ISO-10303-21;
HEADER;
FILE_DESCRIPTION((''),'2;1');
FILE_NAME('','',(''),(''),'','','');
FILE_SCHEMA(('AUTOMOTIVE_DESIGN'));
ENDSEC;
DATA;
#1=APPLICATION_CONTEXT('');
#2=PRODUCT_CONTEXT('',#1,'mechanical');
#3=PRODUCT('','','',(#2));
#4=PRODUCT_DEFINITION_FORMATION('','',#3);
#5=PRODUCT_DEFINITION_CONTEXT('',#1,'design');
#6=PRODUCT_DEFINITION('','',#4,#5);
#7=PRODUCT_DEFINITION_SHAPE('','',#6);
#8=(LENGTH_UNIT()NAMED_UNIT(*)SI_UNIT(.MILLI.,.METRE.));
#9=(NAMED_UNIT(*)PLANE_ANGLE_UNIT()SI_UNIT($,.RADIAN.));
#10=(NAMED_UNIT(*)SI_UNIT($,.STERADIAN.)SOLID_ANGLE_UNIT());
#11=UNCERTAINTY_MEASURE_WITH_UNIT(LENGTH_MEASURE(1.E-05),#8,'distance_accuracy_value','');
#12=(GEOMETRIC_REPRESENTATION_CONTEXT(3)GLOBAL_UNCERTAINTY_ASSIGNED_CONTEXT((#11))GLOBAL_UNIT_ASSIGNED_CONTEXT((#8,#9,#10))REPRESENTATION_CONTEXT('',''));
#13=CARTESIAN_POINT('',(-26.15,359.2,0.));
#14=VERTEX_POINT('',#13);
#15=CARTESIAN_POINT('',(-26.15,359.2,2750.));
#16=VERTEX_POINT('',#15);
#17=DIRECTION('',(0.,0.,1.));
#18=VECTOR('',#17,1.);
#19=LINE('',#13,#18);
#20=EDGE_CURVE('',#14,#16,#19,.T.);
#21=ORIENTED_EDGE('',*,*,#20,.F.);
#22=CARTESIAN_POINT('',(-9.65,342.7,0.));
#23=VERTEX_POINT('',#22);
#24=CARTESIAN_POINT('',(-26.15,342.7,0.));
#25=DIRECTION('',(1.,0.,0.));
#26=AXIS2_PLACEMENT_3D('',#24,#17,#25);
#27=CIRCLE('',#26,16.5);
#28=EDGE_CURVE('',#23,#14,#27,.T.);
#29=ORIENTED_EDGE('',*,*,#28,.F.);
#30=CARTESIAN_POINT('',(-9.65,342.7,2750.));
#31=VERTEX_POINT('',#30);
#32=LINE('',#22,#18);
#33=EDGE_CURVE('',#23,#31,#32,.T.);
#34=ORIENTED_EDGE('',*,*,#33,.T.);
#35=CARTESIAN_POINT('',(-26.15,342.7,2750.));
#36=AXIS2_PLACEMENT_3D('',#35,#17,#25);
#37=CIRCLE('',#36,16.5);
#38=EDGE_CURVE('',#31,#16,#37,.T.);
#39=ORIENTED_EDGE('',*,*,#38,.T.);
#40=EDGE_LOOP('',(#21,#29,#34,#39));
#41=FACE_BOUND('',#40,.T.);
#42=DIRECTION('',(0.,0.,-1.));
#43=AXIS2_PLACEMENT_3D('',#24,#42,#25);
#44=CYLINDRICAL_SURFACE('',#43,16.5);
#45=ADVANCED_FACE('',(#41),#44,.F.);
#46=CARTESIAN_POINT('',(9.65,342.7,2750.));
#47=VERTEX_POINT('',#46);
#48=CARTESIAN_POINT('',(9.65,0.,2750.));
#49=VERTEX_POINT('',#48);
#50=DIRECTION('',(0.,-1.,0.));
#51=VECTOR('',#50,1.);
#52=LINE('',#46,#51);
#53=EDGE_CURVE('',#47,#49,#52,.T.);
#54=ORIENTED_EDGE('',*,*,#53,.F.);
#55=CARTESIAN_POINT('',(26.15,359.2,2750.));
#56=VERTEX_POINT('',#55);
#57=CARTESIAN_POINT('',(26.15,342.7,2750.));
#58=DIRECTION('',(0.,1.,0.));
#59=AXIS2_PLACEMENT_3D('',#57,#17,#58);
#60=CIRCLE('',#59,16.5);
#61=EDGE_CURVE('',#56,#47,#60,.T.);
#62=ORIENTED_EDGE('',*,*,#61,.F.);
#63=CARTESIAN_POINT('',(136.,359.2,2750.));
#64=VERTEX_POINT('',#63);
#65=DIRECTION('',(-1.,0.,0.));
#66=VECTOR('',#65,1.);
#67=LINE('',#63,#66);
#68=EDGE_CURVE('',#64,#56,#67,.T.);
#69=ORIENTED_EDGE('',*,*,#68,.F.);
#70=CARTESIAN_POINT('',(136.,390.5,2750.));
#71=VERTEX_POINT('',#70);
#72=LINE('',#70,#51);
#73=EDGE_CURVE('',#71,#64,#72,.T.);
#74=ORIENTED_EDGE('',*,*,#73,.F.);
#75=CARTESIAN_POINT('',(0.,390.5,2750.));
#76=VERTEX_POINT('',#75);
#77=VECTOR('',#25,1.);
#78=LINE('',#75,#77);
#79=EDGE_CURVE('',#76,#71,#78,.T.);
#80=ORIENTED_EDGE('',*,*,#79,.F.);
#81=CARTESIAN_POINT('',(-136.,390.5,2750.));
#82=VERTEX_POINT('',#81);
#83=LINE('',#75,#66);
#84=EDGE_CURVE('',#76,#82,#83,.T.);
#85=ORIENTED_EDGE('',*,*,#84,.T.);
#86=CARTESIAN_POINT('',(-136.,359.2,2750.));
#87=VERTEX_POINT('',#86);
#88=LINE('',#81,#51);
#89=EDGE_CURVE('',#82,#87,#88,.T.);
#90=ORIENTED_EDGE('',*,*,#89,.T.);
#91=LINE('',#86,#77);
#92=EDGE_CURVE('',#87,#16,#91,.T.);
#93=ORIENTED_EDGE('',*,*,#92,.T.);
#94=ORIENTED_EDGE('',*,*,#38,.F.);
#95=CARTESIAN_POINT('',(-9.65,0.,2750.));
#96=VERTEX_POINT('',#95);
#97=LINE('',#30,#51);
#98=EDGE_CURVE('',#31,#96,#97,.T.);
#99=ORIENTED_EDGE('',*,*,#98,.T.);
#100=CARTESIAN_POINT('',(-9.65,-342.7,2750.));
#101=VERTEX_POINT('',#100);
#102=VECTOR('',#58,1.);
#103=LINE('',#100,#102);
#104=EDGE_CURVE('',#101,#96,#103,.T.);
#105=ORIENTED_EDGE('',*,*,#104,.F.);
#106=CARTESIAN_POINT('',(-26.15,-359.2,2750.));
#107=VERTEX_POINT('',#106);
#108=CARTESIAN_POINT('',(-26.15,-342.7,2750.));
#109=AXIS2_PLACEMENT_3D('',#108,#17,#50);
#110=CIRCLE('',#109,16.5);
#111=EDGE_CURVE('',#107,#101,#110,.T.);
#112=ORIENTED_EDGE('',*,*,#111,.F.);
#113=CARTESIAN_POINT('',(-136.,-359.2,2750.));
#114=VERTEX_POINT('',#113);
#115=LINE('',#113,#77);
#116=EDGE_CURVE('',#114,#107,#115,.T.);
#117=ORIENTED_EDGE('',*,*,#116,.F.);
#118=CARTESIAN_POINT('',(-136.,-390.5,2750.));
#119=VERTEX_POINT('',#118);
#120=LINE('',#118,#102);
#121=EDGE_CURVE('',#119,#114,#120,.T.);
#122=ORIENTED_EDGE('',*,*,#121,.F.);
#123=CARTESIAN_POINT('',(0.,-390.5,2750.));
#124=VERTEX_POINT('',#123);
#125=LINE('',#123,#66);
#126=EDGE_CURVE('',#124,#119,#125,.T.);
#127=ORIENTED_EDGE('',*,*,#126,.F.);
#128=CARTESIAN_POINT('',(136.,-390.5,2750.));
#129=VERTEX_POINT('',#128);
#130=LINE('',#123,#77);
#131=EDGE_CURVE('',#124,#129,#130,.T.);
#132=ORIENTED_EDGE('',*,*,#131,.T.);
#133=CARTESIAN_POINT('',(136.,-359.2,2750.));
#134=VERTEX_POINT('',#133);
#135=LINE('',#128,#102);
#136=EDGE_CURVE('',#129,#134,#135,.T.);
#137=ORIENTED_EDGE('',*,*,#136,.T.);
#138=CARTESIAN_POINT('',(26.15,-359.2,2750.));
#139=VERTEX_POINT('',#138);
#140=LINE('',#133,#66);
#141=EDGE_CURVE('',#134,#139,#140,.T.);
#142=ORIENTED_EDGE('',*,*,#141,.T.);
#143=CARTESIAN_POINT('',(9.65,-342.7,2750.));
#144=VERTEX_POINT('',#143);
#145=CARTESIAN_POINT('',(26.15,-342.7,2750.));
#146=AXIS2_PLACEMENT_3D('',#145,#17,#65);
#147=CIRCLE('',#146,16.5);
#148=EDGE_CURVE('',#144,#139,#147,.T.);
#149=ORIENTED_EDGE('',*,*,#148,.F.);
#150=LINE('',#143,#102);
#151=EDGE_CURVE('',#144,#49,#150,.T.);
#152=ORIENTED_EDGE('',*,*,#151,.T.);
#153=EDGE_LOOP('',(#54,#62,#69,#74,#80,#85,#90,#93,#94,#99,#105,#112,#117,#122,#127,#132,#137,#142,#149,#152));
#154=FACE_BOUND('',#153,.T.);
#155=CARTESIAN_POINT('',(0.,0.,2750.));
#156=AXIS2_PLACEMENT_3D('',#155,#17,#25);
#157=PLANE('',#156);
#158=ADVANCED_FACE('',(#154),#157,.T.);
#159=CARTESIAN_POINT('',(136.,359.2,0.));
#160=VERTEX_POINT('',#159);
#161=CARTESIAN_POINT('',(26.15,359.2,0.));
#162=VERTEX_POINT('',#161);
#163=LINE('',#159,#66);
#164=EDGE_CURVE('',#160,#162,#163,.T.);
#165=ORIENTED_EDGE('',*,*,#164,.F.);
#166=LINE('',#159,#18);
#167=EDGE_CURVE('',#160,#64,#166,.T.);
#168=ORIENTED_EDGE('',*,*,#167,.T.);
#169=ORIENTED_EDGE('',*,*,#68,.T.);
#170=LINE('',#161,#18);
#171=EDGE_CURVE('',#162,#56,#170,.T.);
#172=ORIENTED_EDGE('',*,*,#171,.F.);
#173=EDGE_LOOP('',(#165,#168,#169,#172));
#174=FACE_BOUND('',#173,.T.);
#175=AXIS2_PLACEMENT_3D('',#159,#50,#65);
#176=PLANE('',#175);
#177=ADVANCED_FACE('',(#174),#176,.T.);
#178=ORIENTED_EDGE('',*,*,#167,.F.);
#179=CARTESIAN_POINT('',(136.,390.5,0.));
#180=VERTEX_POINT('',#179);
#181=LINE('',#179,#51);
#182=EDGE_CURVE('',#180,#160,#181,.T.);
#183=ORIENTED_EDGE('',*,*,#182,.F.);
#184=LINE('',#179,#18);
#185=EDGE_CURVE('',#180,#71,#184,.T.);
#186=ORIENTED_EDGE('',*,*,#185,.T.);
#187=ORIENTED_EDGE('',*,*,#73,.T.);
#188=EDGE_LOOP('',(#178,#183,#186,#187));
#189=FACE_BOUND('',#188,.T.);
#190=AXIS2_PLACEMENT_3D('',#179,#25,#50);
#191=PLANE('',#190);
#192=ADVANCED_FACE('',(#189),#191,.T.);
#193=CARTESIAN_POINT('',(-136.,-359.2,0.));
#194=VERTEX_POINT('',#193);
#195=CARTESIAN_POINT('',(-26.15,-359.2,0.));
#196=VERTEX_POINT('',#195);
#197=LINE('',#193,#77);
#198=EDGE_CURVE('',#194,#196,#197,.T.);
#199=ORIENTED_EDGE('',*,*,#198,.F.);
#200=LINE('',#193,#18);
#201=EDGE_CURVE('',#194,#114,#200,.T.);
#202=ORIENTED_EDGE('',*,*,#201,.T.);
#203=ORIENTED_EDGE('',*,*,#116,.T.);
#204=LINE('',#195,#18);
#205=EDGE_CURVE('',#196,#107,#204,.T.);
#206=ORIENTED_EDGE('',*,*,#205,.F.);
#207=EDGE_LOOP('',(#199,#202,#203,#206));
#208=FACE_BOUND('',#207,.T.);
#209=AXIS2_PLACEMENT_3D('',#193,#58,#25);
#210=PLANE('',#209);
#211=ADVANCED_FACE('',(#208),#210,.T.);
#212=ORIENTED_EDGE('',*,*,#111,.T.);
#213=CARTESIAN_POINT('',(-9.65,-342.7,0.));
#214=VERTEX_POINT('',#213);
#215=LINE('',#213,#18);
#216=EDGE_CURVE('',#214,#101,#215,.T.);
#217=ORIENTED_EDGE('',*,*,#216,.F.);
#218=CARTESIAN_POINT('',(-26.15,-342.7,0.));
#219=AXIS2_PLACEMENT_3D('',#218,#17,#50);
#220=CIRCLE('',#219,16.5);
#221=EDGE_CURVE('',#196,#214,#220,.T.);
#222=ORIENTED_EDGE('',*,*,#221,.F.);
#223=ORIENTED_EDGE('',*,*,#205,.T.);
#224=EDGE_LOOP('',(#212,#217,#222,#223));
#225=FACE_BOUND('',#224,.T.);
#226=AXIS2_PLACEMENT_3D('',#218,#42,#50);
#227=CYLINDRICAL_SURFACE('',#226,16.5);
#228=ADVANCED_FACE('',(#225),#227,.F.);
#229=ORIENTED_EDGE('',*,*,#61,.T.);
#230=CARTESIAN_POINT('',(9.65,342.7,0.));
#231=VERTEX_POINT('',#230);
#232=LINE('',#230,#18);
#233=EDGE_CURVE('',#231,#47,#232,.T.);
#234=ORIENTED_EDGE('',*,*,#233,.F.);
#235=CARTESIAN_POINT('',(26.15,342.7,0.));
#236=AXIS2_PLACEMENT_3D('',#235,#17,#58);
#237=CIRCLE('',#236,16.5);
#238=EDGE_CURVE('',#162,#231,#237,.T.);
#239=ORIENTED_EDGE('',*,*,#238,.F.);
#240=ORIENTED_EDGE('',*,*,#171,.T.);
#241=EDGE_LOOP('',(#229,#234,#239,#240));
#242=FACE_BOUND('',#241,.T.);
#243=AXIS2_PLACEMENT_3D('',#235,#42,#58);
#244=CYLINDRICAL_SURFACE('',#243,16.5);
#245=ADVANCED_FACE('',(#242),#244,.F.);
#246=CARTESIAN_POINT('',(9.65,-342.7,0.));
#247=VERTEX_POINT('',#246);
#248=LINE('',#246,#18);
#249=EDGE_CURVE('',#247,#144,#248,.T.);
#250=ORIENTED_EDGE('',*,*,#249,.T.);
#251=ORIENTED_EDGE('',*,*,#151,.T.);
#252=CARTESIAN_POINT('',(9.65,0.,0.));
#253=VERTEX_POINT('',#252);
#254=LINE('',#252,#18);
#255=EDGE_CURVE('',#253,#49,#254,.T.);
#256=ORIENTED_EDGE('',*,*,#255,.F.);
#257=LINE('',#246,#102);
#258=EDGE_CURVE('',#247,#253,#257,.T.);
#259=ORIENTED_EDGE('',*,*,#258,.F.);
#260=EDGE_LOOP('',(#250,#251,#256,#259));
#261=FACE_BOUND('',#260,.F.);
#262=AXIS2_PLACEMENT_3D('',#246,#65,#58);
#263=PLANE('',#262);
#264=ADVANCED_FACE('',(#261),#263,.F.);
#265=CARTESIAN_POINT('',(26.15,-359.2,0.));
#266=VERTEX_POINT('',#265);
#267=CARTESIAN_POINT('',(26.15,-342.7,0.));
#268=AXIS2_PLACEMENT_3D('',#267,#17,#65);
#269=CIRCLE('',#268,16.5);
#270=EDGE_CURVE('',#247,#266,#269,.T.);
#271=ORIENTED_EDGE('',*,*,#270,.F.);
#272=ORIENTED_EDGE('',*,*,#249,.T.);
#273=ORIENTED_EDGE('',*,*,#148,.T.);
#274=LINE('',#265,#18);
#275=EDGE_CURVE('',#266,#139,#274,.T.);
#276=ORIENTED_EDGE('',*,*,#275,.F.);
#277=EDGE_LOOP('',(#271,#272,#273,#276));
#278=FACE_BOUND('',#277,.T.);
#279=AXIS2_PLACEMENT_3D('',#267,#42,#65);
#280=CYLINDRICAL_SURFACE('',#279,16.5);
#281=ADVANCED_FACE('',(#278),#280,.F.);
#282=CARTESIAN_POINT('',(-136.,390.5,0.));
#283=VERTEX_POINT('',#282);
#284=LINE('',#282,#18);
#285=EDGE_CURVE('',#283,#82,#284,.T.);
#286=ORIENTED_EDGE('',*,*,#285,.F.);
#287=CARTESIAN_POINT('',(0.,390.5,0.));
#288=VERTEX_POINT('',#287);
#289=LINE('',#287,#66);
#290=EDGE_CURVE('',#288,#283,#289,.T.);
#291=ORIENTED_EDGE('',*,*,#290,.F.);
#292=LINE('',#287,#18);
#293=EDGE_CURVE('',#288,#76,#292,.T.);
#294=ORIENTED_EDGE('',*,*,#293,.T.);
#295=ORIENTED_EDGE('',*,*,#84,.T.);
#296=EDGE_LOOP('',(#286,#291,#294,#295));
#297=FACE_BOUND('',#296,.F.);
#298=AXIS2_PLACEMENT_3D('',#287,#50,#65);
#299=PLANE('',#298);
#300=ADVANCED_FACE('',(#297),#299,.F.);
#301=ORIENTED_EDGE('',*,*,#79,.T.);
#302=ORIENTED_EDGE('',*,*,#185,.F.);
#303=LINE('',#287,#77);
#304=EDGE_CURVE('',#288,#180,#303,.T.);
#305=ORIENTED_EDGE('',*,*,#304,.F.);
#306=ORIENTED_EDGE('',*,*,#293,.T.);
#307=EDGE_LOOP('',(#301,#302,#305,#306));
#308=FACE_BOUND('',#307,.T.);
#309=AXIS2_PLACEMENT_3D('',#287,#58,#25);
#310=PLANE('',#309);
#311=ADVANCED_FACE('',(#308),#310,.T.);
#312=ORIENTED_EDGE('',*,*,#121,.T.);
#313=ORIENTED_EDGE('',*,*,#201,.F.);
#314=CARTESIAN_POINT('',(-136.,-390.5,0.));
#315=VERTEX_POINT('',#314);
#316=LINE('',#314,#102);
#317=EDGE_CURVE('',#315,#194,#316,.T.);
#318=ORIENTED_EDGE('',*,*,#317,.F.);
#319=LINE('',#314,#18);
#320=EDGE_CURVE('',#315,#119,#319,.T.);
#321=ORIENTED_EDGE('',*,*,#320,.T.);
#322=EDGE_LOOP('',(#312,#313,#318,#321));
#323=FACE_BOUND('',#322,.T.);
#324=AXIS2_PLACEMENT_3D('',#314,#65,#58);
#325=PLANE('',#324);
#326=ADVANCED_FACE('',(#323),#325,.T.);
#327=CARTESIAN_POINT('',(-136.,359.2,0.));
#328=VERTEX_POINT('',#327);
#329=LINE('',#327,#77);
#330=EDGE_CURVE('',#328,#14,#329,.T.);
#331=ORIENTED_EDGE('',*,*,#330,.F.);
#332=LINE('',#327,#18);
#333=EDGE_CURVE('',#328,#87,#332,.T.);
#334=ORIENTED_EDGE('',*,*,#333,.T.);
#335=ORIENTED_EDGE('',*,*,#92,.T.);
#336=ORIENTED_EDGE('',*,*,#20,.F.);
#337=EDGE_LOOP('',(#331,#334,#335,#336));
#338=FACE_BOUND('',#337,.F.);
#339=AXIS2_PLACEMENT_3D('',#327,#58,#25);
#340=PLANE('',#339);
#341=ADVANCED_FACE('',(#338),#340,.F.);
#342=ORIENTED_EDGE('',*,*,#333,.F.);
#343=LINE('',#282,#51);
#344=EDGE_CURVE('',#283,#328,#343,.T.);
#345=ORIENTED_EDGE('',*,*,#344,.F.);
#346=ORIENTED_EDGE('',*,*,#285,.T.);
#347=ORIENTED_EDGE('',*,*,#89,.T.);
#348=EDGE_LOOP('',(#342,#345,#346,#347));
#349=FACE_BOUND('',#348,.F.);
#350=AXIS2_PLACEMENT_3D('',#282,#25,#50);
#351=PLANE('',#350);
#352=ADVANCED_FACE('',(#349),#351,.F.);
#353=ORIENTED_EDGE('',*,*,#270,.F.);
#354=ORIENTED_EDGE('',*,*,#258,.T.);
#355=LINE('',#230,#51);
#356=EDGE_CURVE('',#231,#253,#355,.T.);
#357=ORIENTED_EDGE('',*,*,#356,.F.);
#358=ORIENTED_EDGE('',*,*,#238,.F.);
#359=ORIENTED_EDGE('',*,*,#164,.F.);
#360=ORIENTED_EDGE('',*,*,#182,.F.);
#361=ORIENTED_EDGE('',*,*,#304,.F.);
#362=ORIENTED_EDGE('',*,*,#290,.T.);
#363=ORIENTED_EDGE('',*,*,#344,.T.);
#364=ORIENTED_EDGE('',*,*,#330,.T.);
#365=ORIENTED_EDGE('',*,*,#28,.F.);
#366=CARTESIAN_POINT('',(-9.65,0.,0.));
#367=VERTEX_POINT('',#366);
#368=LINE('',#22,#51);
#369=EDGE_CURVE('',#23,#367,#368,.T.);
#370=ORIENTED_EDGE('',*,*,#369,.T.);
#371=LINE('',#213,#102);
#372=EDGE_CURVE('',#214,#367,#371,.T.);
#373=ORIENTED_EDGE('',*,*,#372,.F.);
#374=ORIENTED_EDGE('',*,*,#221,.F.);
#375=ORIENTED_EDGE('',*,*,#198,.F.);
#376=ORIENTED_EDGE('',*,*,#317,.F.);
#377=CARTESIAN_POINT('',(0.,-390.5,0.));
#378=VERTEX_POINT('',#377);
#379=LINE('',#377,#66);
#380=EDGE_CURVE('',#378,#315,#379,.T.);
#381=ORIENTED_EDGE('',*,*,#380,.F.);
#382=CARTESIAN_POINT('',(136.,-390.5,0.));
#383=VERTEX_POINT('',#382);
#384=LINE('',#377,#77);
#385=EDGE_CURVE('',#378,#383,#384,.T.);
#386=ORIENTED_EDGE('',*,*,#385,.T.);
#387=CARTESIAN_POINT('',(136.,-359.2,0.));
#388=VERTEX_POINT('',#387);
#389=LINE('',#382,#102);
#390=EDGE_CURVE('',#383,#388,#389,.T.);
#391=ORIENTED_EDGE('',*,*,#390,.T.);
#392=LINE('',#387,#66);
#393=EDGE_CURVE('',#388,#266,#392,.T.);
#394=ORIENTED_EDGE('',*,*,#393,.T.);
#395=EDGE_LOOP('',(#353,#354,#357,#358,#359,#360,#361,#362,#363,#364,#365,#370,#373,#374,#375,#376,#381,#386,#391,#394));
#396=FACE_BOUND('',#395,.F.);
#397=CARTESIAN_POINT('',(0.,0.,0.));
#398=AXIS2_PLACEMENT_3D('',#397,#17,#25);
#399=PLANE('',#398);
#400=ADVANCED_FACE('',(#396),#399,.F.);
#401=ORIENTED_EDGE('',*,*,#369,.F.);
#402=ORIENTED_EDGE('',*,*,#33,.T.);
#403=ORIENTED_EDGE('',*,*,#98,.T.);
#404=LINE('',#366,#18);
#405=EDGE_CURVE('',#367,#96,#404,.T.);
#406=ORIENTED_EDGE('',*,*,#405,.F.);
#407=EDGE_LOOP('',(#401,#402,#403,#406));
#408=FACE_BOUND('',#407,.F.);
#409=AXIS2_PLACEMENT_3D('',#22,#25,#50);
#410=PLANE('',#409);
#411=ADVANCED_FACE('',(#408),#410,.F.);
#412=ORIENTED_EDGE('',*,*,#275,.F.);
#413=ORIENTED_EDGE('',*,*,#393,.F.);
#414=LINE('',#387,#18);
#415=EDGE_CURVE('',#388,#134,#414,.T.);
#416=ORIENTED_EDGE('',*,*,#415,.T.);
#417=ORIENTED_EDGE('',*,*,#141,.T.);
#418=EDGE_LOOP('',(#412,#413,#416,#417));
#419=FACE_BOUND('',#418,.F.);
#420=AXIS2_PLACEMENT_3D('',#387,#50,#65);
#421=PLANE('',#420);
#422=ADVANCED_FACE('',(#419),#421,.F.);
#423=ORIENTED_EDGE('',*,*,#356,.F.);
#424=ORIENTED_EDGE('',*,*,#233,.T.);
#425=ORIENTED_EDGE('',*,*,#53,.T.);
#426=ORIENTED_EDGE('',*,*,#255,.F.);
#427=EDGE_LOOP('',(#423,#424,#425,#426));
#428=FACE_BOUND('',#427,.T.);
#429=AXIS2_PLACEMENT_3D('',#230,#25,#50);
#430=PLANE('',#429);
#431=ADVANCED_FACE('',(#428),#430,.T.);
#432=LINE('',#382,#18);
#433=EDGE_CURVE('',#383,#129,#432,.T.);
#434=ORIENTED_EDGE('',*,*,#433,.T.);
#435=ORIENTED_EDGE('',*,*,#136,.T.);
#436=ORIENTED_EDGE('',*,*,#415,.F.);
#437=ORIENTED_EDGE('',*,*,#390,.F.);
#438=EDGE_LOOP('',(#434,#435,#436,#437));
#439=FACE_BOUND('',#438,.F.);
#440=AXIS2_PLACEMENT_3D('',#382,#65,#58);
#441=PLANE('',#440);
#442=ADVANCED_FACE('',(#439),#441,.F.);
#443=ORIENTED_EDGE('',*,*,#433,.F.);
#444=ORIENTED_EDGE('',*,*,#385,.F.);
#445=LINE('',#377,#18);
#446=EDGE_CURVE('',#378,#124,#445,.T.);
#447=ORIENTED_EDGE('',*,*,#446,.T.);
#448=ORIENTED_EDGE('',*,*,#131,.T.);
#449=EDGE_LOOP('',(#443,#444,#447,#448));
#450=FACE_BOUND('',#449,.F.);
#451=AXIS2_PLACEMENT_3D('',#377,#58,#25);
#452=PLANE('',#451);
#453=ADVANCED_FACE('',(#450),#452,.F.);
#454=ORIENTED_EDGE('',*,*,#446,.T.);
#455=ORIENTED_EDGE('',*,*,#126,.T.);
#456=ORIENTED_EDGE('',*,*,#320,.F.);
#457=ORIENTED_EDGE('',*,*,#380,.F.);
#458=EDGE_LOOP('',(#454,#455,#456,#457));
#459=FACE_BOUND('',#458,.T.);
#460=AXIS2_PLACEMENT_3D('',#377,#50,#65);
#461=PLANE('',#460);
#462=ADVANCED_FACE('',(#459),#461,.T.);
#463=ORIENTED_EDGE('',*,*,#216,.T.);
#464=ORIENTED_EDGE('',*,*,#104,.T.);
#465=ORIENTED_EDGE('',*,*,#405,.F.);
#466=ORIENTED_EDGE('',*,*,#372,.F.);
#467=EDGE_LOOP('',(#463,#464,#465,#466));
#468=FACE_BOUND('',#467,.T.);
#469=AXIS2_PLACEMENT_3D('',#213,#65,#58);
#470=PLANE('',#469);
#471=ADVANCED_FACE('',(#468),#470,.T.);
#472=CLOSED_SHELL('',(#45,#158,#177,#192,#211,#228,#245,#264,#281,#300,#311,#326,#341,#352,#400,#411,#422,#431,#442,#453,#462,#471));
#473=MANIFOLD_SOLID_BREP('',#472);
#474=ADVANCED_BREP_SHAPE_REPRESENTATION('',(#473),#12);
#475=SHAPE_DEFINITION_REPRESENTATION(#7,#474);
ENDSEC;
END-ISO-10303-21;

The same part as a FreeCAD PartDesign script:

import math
import FreeCAD as App
import Part
import Sketcher

V = App.Vector

doc = App.newDocument("Part")
params = doc.addObject("Spreadsheet::Sheet", "Params")
for row, (alias, value) in enumerate([
    ("sketch1_radius", "16.5 mm"),
    ("sketch1_height", "31.3 mm"),
    ("pad1_length", "2750 mm"),
], start=1):
    params.set(f"A{row}", alias)
    params.set(f"B{row}", "=" + value)
    params.setAlias(f"B{row}", alias)

body = doc.addObject("PartDesign::Body", "Body")

# Sketch on XY plane
sketch1 = doc.addObject("Sketcher::SketchObject", "Sketch")
body.addObject(sketch1)
sketch1.AttachmentSupport = (doc.XY_Plane, [""])
sketch1.MapMode = "FlatFace"
sketch1.addGeometry([
    Part.LineSegment(V(-136, -359, 0), V(-136, -390, 0)),  # 0
    Part.LineSegment(V(-136, -390, 0), V(136, -390, 0)),  # 1
    Part.LineSegment(V(136, -390, 0), V(136, -359, 0)),  # 2
    Part.LineSegment(V(136, -359, 0), V(26, -359, 0)),  # 3
    Part.ArcOfCircle(Part.Circle(V(26, -343, 0), V(0, 0, 1), 16), math.radians(180), math.radians(270)),  # 4
    Part.LineSegment(V(10, -343, 0), V(10, 343, 0)),  # 5
    Part.ArcOfCircle(Part.Circle(V(26, 343, 0), V(0, 0, 1), 16), math.radians(90), math.radians(180)),  # 6
    Part.LineSegment(V(26, 359, 0), V(136, 359, 0)),  # 7
    Part.LineSegment(V(136, 359, 0), V(136, 390, 0)),  # 8
    Part.LineSegment(V(136, 390, 0), V(-136, 390, 0)),  # 9
    Part.LineSegment(V(-136, 390, 0), V(-136, 359, 0)),  # 10
    Part.LineSegment(V(-136, 359, 0), V(-26, 359, 0)),  # 11
    Part.ArcOfCircle(Part.Circle(V(-26, 343, 0), V(0, 0, 1), 16), math.radians(0), math.radians(90)),  # 12
    Part.LineSegment(V(-10, 343, 0), V(-10, -343, 0)),  # 13
    Part.ArcOfCircle(Part.Circle(V(-26, -343, 0), V(0, 0, 1), 16), math.radians(-90), math.radians(0)),  # 14
    Part.LineSegment(V(-26, -359, 0), V(-136, -359, 0)),  # 15
], False)
sketch1.addConstraint([
    Sketcher.Constraint("Coincident", 0, 2, 1, 1),
    Sketcher.Constraint("Coincident", 1, 2, 2, 1),
    Sketcher.Constraint("Coincident", 2, 2, 3, 1),
    Sketcher.Constraint("Tangent", 3, 2, 4, 2),
    Sketcher.Constraint("Tangent", 4, 1, 5, 1),
    Sketcher.Constraint("Tangent", 5, 2, 6, 2),
    Sketcher.Constraint("Tangent", 6, 1, 7, 1),
    Sketcher.Constraint("Coincident", 7, 2, 8, 1),
    Sketcher.Constraint("Coincident", 8, 2, 9, 1),
    Sketcher.Constraint("Coincident", 9, 2, 10, 1),
    Sketcher.Constraint("Coincident", 10, 2, 11, 1),
    Sketcher.Constraint("Tangent", 11, 2, 12, 2),
    Sketcher.Constraint("Tangent", 12, 1, 13, 1),
    Sketcher.Constraint("Tangent", 13, 2, 14, 2),
    Sketcher.Constraint("Tangent", 14, 1, 15, 1),
    Sketcher.Constraint("Coincident", 15, 2, 0, 1),
    Sketcher.Constraint("Vertical", 0),
    Sketcher.Constraint("Horizontal", 1),
    Sketcher.Constraint("Vertical", 2),
    Sketcher.Constraint("Horizontal", 3),
    Sketcher.Constraint("Vertical", 5),
    Sketcher.Constraint("Horizontal", 7),
    Sketcher.Constraint("Vertical", 8),
    Sketcher.Constraint("Horizontal", 9),
    Sketcher.Constraint("Vertical", 10),
    Sketcher.Constraint("Horizontal", 11),
    Sketcher.Constraint("Vertical", 13),
    Sketcher.Constraint("Horizontal", 15),
    Sketcher.Constraint("Equal", 4, 6),
    Sketcher.Constraint("Equal", 6, 12),
    Sketcher.Constraint("Equal", 12, 14),
    Sketcher.Constraint("Symmetric", 4, 3, 12, 3, -1, 1),
    Sketcher.Constraint("Symmetric", 0, 2, 8, 2, -1, 1),
    Sketcher.Constraint("Symmetric", 7, 2, 10, 2, -2),
    Sketcher.Constraint("Symmetric", 2, 2, 15, 2, -2),
    Sketcher.Constraint("Radius", 4, 16.5),
    Sketcher.Constraint("DistanceY", 0, 2, 0, 1, 31.3),
    Sketcher.Constraint("DistanceX", 0, 2, -1, 1, 136.0),
    Sketcher.Constraint("DistanceY", 0, 2, -1, 1, 390.5),
    Sketcher.Constraint("DistanceX", -1, 1, 4, 1, 9.65),
])
sketch1.setExpression("Constraints[35]", "Params.sketch1_radius")
sketch1.setExpression("Constraints[36]", "Params.sketch1_height")
pad1 = doc.addObject("PartDesign::Pad", "Pad")
body.addObject(pad1)
pad1.Profile = sketch1
pad1.setExpression("Length", "Params.pad1_length")

doc.recompute()
